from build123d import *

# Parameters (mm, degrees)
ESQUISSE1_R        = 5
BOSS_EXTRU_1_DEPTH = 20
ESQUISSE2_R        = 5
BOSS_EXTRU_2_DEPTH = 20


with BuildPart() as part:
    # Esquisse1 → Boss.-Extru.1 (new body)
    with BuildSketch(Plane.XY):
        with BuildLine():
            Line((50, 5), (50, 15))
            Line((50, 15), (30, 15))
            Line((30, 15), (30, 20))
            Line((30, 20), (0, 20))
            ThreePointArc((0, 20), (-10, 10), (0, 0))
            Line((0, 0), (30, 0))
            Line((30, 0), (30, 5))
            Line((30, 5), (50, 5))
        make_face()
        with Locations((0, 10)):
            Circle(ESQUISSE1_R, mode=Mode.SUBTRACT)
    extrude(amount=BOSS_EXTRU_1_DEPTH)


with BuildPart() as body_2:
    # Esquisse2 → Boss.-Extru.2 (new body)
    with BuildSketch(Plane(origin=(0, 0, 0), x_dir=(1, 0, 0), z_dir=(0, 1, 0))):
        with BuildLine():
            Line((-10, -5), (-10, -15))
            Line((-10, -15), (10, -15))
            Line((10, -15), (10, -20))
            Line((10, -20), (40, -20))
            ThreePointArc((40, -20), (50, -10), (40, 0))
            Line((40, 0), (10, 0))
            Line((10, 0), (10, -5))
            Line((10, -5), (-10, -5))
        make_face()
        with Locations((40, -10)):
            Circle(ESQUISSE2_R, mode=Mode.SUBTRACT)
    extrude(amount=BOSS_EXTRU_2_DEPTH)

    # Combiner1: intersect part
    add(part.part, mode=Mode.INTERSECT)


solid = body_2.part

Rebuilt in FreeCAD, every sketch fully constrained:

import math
import FreeCAD as App
import Part
import Sketcher
Q = App.Units.Quantity

doc = App.newDocument("Part")
params = doc.addObject("Spreadsheet::Sheet", "Params")
for row, (alias, value) in enumerate([
    ("sketch1_diameter", "10 mm"),
    ("sketch1_radius", "10 mm"),
    ("sketch1_width", "20 mm"),
    ("sketch1_width2", "30 mm"),
    ("sketch1_height", "10 mm"),
    ("pad1_length", "20 mm"),
    ("sketch2_diameter", "10 mm"),
    ("sketch2_radius", "10 mm"),
    ("sketch2_width", "20 mm"),
    ("sketch2_width2", "30 mm"),
    ("sketch2_height", "10 mm"),
    ("pad2_length", "20 mm"),
], start=1):
    params.set(f"A{row}", alias)
    params.set(f"B{row}", "=" + value)
    params.setAlias(f"B{row}", alias)

body = doc.addObject("PartDesign::Body", "Body")

# Sketch on XY plane
sketch1 = body.newObject("Sketcher::SketchObject", "Sketch")
sketch1.AttachmentSupport = (doc.getObject("XY_Plane"), [""])
sketch1.MapMode = "FlatFace"
sketch1.addGeometry(Part.LineSegment(App.Vector(50, 5, 0), App.Vector(50, 15, 0)), False)
sketch1.addGeometry(Part.LineSegment(App.Vector(50, 15, 0), App.Vector(30, 15, 0)), False)
sketch1.addGeometry(Part.LineSegment(App.Vector(30, 15, 0), App.Vector(30, 20, 0)), False)
sketch1.addGeometry(Part.LineSegment(App.Vector(30, 20, 0), App.Vector(0, 20, 0)), False)
sketch1.addGeometry(Part.ArcOfCircle(Part.Circle(App.Vector(0, 10, 0), App.Vector(0, 0, 1), 10), math.radians(90), math.radians(270)), False)
sketch1.addGeometry(Part.LineSegment(App.Vector(0, 0, 0), App.Vector(30, 0, 0)), False)
sketch1.addGeometry(Part.LineSegment(App.Vector(30, 0, 0), App.Vector(30, 5, 0)), False)
sketch1.addGeometry(Part.LineSegment(App.Vector(30, 5, 0), App.Vector(50, 5, 0)), False)
sketch1.addGeometry(Part.Circle(App.Vector(0, 10, 0), App.Vector(0, 0, 1), 5), False)
sketch1.addConstraint(Sketcher.Constraint("Coincident", 0, 2, 1, 1))
sketch1.addConstraint(Sketcher.Constraint("Coincident", 1, 2, 2, 1))
sketch1.addConstraint(Sketcher.Constraint("Coincident", 2, 2, 3, 1))
sketch1.addConstraint(Sketcher.Constraint("Tangent", 3, 2, 4, 1))
sketch1.addConstraint(Sketcher.Constraint("Tangent", 4, 2, 5, 1))
sketch1.addConstraint(Sketcher.Constraint("Coincident", 5, 2, 6, 1))
sketch1.addConstraint(Sketcher.Constraint("Coincident", 6, 2, 7, 1))
sketch1.addConstraint(Sketcher.Constraint("Coincident", 7, 2, 0, 1))
sketch1.addConstraint(Sketcher.Constraint("Vertical", 0))
sketch1.addConstraint(Sketcher.Constraint("Horizontal", 1))
sketch1.addConstraint(Sketcher.Constraint("Vertical", 2))
sketch1.addConstraint(Sketcher.Constraint("Horizontal", 3))
sketch1.addConstraint(Sketcher.Constraint("Horizontal", 5))
sketch1.addConstraint(Sketcher.Constraint("Vertical", 6))
sketch1.addConstraint(Sketcher.Constraint("Horizontal", 7))
sketch1.addConstraint(Sketcher.Constraint("Coincident", 4, 2, -1, 1))
sketch1.addConstraint(Sketcher.Constraint("Coincident", 8, 3, 4, 3))
sketch1.addConstraint(Sketcher.Constraint("Vertical", 2, 2, 5, 2))
sketch1.addConstraint(Sketcher.Constraint("Equal", 2, 6))
sketch1.addConstraint(Sketcher.Constraint("Diameter", 8, Q("10 mm")))
sketch1.addConstraint(Sketcher.Constraint("Radius", 4, Q("10 mm")))
sketch1.addConstraint(Sketcher.Constraint("DistanceX", 1, 2, 1, 1, Q("20 mm")))
sketch1.addConstraint(Sketcher.Constraint("DistanceX", 3, 2, 3, 1, Q("30 mm")))
sketch1.addConstraint(Sketcher.Constraint("DistanceY", 0, 1, 0, 2, Q("10 mm")))
sketch1.setExpression("Constraints[19]", "Params.sketch1_diameter")
sketch1.setExpression("Constraints[20]", "Params.sketch1_radius")
sketch1.setExpression("Constraints[21]", "Params.sketch1_width")
sketch1.setExpression("Constraints[22]", "Params.sketch1_width2")
sketch1.setExpression("Constraints[23]", "Params.sketch1_height")
pad1 = body.newObject("PartDesign::Pad", "Pad")
pad1.Profile = sketch1
pad1.setExpression("Length", "Params.pad1_length")
body2 = doc.addObject("PartDesign::Body", "Body001")

# Sketch on XZ plane
sketch2 = body2.newObject("Sketcher::SketchObject", "Sketch001")
sketch2.AttachmentSupport = (doc.getObject("XZ_Plane001"), [""])
sketch2.MapMode = "FlatFace"
sketch2.addGeometry(Part.LineSegment(App.Vector(-10, 5, 0), App.Vector(-10, 15, 0)), False)
sketch2.addGeometry(Part.LineSegment(App.Vector(-10, 15, 0), App.Vector(10, 15, 0)), False)
sketch2.addGeometry(Part.LineSegment(App.Vector(10, 15, 0), App.Vector(10, 20, 0)), False)
sketch2.addGeometry(Part.LineSegment(App.Vector(10, 20, 0), App.Vector(40, 20, 0)), False)
sketch2.addGeometry(Part.ArcOfCircle(Part.Circle(App.Vector(40, 10, 0), App.Vector(0, 0, 1), 10), math.radians(-90), math.radians(90)), False)
sketch2.addGeometry(Part.LineSegment(App.Vector(40, 0, 0), App.Vector(10, 0, 0)), False)
sketch2.addGeometry(Part.LineSegment(App.Vector(10, 0, 0), App.Vector(10, 5, 0)), False)
sketch2.addGeometry(Part.LineSegment(App.Vector(10, 5, 0), App.Vector(-10, 5, 0)), False)
sketch2.addGeometry(Part.Circle(App.Vector(40, 10, 0), App.Vector(0, 0, 1), 5), False)
sketch2.addConstraint(Sketcher.Constraint("Coincident", 0, 2, 1, 1))
sketch2.addConstraint(Sketcher.Constraint("Coincident", 1, 2, 2, 1))
sketch2.addConstraint(Sketcher.Constraint("Coincident", 2, 2, 3, 1))
sketch2.addConstraint(Sketcher.Constraint("Tangent", 3, 2, 4, 2))
sketch2.addConstraint(Sketcher.Constraint("Tangent", 4, 1, 5, 1))
sketch2.addConstraint(Sketcher.Constraint("Coincident", 5, 2, 6, 1))
sketch2.addConstraint(Sketcher.Constraint("Coincident", 6, 2, 7, 1))
sketch2.addConstraint(Sketcher.Constraint("Coincident", 7, 2, 0, 1))
sketch2.addConstraint(Sketcher.Constraint("Vertical", 0))
sketch2.addConstraint(Sketcher.Constraint("Horizontal", 1))
sketch2.addConstraint(Sketcher.Constraint("Vertical", 2))
sketch2.addConstraint(Sketcher.Constraint("Horizontal", 3))
sketch2.addConstraint(Sketcher.Constraint("Horizontal", 5))
sketch2.addConstraint(Sketcher.Constraint("Vertical", 6))
sketch2.addConstraint(Sketcher.Constraint("Horizontal", 7))
sketch2.addConstraint(Sketcher.Constraint("Coincident", 8, 3, 4, 3))
sketch2.addConstraint(Sketcher.Constraint("PointOnObject", 4, 1, -1))
sketch2.addConstraint(Sketcher.Constraint("Vertical", 2, 2, 5, 2))
sketch2.addConstraint(Sketcher.Constraint("Equal", 2, 6))
sketch2.addConstraint(Sketcher.Constraint("Diameter", 8, Q("10 mm")))
sketch2.addConstraint(Sketcher.Constraint("Radius", 4, Q("10 mm")))
sketch2.addConstraint(Sketcher.Constraint("DistanceX", 1, 1, 1, 2, Q("20 mm")))
sketch2.addConstraint(Sketcher.Constraint("DistanceX", 3, 1, 3, 2, Q("30 mm")))
sketch2.addConstraint(Sketcher.Constraint("DistanceY", 0, 1, 0, 2, Q("10 mm")))
sketch2.addConstraint(Sketcher.Constraint("DistanceX", -1, 1, 4, 3, Q("40 mm")))
sketch2.setExpression("Constraints[19]", "Params.sketch2_diameter")
sketch2.setExpression("Constraints[20]", "Params.sketch2_radius")
sketch2.setExpression("Constraints[21]", "Params.sketch2_width")
sketch2.setExpression("Constraints[22]", "Params.sketch2_width2")
sketch2.setExpression("Constraints[23]", "Params.sketch2_height")
pad2 = body2.newObject("PartDesign::Pad", "Pad001")
pad2.Profile = sketch2
pad2.setExpression("Length", "Params.pad2_length")
pad2.Reversed = True
doc.recompute()

boolean = body2.newObject("PartDesign::Boolean", "Boolean")
boolean.Type = "Common"
boolean.addObjects([body])

doc.recompute()
